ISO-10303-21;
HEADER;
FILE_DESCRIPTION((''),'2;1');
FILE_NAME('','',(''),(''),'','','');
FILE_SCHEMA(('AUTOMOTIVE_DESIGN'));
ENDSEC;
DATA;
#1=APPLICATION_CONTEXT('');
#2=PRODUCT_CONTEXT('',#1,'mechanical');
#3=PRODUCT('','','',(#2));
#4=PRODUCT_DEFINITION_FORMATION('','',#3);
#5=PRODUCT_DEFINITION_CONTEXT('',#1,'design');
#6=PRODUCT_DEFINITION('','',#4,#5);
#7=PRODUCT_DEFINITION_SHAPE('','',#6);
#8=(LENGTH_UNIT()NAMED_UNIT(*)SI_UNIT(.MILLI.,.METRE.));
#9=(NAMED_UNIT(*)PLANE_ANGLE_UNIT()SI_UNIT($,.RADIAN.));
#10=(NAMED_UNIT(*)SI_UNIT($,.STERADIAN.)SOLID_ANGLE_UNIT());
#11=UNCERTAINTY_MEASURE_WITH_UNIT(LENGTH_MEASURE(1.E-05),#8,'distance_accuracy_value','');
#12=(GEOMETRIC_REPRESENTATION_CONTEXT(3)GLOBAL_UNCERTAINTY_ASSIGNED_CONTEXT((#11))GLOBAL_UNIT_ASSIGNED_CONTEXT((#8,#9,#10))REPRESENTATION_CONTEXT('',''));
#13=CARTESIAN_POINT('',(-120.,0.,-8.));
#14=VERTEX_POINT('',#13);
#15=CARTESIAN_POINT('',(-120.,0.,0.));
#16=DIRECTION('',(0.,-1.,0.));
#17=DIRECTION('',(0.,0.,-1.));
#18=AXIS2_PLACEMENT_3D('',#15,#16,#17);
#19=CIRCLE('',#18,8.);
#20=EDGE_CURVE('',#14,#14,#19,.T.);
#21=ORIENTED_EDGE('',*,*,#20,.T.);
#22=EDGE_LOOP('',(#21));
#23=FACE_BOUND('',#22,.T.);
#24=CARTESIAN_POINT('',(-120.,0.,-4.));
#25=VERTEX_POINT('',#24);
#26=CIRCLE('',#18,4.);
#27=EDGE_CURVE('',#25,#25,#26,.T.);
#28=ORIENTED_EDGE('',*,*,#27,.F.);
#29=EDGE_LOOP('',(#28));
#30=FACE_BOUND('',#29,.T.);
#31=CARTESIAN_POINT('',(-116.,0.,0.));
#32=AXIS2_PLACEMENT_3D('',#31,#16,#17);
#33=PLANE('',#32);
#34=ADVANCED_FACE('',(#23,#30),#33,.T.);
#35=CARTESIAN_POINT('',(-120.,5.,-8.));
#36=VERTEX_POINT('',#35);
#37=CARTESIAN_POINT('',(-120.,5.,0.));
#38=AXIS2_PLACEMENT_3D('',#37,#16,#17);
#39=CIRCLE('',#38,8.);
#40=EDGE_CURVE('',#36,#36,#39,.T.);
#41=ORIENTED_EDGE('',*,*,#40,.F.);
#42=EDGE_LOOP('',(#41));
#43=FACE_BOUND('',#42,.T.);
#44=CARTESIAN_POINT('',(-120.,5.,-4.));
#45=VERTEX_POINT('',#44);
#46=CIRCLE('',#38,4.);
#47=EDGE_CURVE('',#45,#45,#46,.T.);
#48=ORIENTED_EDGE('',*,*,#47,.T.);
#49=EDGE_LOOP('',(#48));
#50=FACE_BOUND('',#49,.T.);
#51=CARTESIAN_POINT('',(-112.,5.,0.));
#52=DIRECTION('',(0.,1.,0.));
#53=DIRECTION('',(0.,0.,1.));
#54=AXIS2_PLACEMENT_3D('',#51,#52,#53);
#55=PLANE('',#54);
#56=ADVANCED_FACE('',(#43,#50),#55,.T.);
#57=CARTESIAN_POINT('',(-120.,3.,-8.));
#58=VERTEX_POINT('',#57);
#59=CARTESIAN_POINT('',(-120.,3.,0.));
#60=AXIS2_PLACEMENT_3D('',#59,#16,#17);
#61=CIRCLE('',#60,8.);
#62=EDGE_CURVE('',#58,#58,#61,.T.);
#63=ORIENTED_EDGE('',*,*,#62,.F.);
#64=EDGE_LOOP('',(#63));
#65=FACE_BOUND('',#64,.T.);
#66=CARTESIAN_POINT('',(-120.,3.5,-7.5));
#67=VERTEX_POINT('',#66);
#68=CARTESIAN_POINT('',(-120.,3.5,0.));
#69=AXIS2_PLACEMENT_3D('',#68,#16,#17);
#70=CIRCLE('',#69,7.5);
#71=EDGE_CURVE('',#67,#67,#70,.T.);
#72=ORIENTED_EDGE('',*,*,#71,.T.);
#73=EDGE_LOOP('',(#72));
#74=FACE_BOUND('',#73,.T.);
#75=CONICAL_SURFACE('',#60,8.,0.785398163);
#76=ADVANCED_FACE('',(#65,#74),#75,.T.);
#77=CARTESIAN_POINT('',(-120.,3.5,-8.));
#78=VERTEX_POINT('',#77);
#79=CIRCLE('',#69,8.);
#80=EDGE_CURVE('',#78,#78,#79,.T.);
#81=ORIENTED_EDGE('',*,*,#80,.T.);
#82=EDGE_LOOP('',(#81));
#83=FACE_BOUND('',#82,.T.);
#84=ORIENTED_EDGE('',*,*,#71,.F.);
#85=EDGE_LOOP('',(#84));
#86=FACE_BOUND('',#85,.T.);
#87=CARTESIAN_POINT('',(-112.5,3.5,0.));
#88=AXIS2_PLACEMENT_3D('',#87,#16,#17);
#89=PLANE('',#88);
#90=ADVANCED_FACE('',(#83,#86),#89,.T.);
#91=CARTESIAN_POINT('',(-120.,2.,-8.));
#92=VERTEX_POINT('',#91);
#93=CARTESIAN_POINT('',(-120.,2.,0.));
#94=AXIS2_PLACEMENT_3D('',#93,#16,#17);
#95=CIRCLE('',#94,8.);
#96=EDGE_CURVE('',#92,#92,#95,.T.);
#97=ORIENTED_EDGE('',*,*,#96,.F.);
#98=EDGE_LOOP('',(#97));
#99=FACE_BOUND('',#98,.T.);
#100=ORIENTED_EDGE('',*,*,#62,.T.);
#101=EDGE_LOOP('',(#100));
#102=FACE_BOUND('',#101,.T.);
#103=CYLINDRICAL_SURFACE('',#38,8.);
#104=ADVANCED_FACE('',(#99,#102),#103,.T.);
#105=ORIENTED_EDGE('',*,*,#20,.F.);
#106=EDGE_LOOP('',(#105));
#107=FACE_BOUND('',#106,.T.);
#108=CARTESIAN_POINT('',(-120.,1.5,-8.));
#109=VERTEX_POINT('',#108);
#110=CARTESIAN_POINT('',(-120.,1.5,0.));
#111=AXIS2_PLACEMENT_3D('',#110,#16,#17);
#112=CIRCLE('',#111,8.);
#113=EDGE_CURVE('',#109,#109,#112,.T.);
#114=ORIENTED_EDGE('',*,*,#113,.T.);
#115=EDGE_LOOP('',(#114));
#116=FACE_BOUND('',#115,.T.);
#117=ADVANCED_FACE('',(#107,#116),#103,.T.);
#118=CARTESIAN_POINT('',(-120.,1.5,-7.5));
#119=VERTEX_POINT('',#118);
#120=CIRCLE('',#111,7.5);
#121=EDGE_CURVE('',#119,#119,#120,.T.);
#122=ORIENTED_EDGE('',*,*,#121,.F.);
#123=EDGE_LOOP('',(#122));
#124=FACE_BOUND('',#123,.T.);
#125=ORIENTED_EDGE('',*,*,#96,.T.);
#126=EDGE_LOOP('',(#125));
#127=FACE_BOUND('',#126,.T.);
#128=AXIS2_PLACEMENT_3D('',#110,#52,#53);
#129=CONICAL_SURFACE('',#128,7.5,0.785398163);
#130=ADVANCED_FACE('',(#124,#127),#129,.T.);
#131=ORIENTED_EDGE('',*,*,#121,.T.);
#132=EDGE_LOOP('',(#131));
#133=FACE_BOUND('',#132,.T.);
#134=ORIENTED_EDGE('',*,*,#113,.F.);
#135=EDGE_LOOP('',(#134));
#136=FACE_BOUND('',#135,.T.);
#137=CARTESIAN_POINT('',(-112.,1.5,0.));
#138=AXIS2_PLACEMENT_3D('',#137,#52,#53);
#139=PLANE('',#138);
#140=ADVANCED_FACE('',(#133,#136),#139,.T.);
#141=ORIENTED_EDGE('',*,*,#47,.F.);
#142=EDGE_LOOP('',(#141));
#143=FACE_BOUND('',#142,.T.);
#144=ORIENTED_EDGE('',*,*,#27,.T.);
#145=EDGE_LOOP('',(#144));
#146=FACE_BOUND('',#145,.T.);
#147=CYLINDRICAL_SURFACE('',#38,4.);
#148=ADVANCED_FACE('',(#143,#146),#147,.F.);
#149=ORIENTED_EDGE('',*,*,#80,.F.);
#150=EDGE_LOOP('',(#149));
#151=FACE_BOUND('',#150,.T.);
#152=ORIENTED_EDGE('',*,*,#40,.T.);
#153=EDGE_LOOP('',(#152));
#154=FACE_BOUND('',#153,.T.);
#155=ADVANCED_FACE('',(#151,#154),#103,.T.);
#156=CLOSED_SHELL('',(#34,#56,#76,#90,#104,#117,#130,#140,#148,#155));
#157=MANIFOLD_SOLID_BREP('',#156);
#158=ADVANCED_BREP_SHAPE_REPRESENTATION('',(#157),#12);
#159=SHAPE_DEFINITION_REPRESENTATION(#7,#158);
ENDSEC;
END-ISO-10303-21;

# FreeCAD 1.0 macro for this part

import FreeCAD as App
import Part
import Sketcher
from FreeCAD import Vector


def add_polygon(sketch, points):
    """Adds a closed chain of lines whose ends are joined by coincident constraints."""
    first, n = sketch.GeometryCount, len(points)
    for a, b in zip(points, points[1:] + points[:1]):
        sketch.addGeometry(Part.LineSegment(App.Vector(*a, 0), App.Vector(*b, 0)), False)
    for i in range(n):
        sketch.addConstraint(Sketcher.Constraint("Coincident", first + i, 2, first + (i + 1) % n, 1))

doc = App.newDocument("Part")
body = doc.addObject("PartDesign::Body", "Body")

# Sketch on XY plane
sketch1 = doc.addObject("Sketcher::SketchObject", "Sketch")
body.addObject(sketch1)
sketch1.AttachmentSupport = (doc.XY_Plane, [""])
sketch1.MapMode = "FlatFace"
add_polygon(sketch1, [(-112, 5), (-116, 5), (-116, 0), (-112, 0), (-112, 1.5), (-112.5, 1.5), (-112, 2), (-112, 3), (-112.5, 3.5), (-112, 3.5)])  # lines 0-9
sketch1.addGeometry(Part.LineSegment(Vector(-120, 5, 0), Vector(-120, 0, 0)), True)  # axis
sketch1.addConstraint([
    Sketcher.Constraint("Horizontal", 0),
    Sketcher.Constraint("Vertical", 1),
    Sketcher.Constraint("Horizontal", 2),
    Sketcher.Constraint("Vertical", 3),
    Sketcher.Constraint("Horizontal", 4),
    Sketcher.Constraint("Vertical", 6),
    Sketcher.Constraint("Horizontal", 8),
    Sketcher.Constraint("Vertical", 9),
    Sketcher.Constraint("Vertical", 10),
    Sketcher.Constraint("PointOnObject", 1, 2, -1),
    Sketcher.Constraint("PointOnObject", 10, 2, -1),
    Sketcher.Constraint("Perpendicular", 5, 7),
    Sketcher.Constraint("Horizontal", 9, 2, 10, 1),
    Sketcher.Constraint("Vertical", 3, 2, 5, 2),
    Sketcher.Constraint("Vertical", 4, 2, 7, 2),
    Sketcher.Constraint("Vertical", 6, 2, 8, 2),
    Sketcher.Constraint("Equal", 3, 9),
    Sketcher.Constraint("Equal", 5, 7),
    Sketcher.Constraint("DistanceX", 0, 2, 0, 1, 4.0),
    Sketcher.Constraint("DistanceY", 1, 2, 1, 1, 5.0),
    Sketcher.Constraint("DistanceY", 6, 1, 6, 2, 1.0),
    Sketcher.Constraint("DistanceX", 4, 2, 4, 1, 0.5),
    Sketcher.Constraint("DistanceX", 0, 2, -1, 1, 116.0),
    Sketcher.Constraint("DistanceX", 10, 1, -1, 1, 120.0),
])
revolution = doc.addObject("PartDesign::Revolution", "Revolution")
body.addObject(revolution)
revolution.Profile = sketch1
revolution.ReferenceAxis = (sketch1, ["Axis0"])
revolution.Angle = 360

doc.recompute()
